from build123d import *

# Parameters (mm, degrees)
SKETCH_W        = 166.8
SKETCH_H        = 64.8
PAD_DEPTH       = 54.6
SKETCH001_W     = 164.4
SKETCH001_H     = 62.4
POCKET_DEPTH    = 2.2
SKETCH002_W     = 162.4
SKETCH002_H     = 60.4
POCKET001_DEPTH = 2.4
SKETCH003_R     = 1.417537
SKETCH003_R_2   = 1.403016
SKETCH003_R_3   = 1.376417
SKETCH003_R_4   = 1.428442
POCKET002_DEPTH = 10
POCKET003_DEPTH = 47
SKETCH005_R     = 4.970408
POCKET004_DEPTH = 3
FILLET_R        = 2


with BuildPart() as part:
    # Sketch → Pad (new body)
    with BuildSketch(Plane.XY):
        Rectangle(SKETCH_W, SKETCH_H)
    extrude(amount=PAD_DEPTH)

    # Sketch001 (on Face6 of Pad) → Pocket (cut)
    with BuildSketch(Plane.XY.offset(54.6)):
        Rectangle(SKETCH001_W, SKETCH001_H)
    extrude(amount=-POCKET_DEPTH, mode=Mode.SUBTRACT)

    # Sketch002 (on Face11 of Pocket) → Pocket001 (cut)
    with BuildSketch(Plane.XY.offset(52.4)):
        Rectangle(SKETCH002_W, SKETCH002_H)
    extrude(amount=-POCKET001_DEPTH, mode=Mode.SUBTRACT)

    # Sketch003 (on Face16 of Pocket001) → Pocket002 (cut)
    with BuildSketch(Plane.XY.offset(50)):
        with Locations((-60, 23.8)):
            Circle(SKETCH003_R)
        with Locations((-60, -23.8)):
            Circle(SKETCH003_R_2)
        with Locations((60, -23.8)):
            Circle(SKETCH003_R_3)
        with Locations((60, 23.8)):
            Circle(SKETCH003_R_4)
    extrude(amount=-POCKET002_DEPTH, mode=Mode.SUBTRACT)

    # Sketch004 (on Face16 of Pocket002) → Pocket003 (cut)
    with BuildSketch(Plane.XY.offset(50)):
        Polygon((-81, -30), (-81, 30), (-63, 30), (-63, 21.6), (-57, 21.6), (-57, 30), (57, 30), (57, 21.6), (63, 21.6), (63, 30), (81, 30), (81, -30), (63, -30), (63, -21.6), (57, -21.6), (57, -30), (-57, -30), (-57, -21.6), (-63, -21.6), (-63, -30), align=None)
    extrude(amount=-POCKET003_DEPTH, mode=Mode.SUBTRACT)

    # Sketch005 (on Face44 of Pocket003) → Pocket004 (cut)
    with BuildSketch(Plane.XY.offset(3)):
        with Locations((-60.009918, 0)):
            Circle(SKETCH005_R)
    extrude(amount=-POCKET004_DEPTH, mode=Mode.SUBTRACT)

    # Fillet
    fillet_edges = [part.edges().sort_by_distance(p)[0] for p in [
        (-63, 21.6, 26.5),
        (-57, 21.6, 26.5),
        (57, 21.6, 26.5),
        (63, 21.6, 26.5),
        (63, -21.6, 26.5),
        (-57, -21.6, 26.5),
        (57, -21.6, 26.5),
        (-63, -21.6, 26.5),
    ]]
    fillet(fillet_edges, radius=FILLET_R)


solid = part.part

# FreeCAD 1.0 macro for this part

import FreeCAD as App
import Part
import Sketcher

V = App.Vector
Q = App.Units.Quantity


def edges_at(feature, points):
    """Names of the edges that pass closest to the given points."""
    edges = feature.Shape.Edges
    near = lambda p: min(range(len(edges)), key=lambda i: edges[i].distToShape(Part.Vertex(*p))[0])
    return sorted({f"Edge{near(p) + 1}" for p in points})


def add_polygon(sketch, points):
    """Adds a closed chain of lines whose ends are joined by coincident constraints."""
    first, n = sketch.GeometryCount, len(points)
    for a, b in zip(points, points[1:] + points[:1]):
        sketch.addGeometry(Part.LineSegment(App.Vector(*a, 0), App.Vector(*b, 0)), False)
    for i in range(n):
        sketch.addConstraint(Sketcher.Constraint("Coincident", first + i, 2, first + (i + 1) % n, 1))

doc = App.newDocument("Part")
body = doc.addObject("PartDesign::Body", "Body")

# Sketch on XY plane
sketch1 = body.newObject("Sketcher::SketchObject", "Sketch")
sketch1.AttachmentSupport = (doc.getObject("XY_Plane"), [""])
sketch1.MapMode = "FlatFace"
add_polygon(sketch1, [(-83, 32), (-83, -32), (83, -32), (83, 32)])  # lines 0-3
sketch1.addConstraint([
    Sketcher.Constraint("Vertical", 0),
    Sketcher.Constraint("Horizontal", 1),
    Sketcher.Constraint("Vertical", 2),
    Sketcher.Constraint("Horizontal", 3),
    Sketcher.Constraint("Symmetric", 0, 2, 2, 2, -1, 1),
    Sketcher.Constraint("DistanceX", 1, 1, 1, 2, Q("166.8 mm")),
    Sketcher.Constraint("DistanceY", 0, 2, 0, 1, Q("64.8 mm")),
])
pad1 = body.newObject("PartDesign::Pad", "Pad")
pad1.Profile = sketch1
pad1.Length = 54.6

# Sketch on XY plane
sketch2 = body.newObject("Sketcher::SketchObject", "Sketch001")
sketch2.AttachmentSupport = (doc.getObject("XY_Plane"), [""])
sketch2.MapMode = "FlatFace"
sketch2.AttachmentOffset = App.Placement(V(0, 0, 54.6), App.Rotation())
add_polygon(sketch2, [(-82, 31), (-82, -31), (82, -31), (82, 31)])  # lines 0-3
sketch2.addConstraint([
    Sketcher.Constraint("Vertical", 0),
    Sketcher.Constraint("Horizontal", 1),
    Sketcher.Constraint("Vertical", 2),
    Sketcher.Constraint("Horizontal", 3),
    Sketcher.Constraint("Symmetric", 0, 2, 2, 2, -1, 1),
    Sketcher.Constraint("DistanceX", 1, 1, 1, 2, Q("164.4 mm")),
    Sketcher.Constraint("DistanceY", 0, 2, 0, 1, Q("62.4 mm")),
])
pocket1 = body.newObject("PartDesign::Pocket", "Pocket")
pocket1.Profile = sketch2
pocket1.Length = 2.2

# Sketch on XY plane
sketch3 = body.newObject("Sketcher::SketchObject", "Sketch002")
sketch3.AttachmentSupport = (doc.getObject("XY_Plane"), [""])
sketch3.MapMode = "FlatFace"
sketch3.AttachmentOffset = App.Placement(V(0, 0, 52.4), App.Rotation())
add_polygon(sketch3, [(-81, 30), (-81, -30), (81, -30), (81, 30)])  # lines 0-3
sketch3.addConstraint([
    Sketcher.Constraint("Vertical", 0),
    Sketcher.Constraint("Horizontal", 1),
    Sketcher.Constraint("Vertical", 2),
    Sketcher.Constraint("Horizontal", 3),
    Sketcher.Constraint("Symmetric", 0, 2, 2, 2, -1, 1),
    Sketcher.Constraint("DistanceX", 1, 1, 1, 2, Q("162.4 mm")),
    Sketcher.Constraint("DistanceY", 0, 2, 0, 1, Q("60.4 mm")),
])
pocket2 = body.newObject("PartDesign::Pocket", "Pocket001")
pocket2.Profile = sketch3
pocket2.Length = 2.4

# Sketch on XY plane
sketch4 = body.newObject("Sketcher::SketchObject", "Sketch003")
sketch4.AttachmentSupport = (doc.getObject("XY_Plane"), [""])
sketch4.MapMode = "FlatFace"
sketch4.AttachmentOffset = App.Placement(V(0, 0, 50), App.Rotation())
sketch4.addGeometry([
    Part.Circle(V(-60, 23.8, 0), V(0, 0, 1), 1.4),
    Part.Circle(V(-60, -23.8, 0), V(0, 0, 1), 1.4),
    Part.Circle(V(60, -23.8, 0), V(0, 0, 1), 1.4),
    Part.Circle(V(60, 23.8, 0), V(0, 0, 1), 1.4),
], False)
sketch4.addConstraint([
    Sketcher.Constraint("Symmetric", 0, 3, 2, 3, -1, 1),
    Sketcher.Constraint("Symmetric", 1, 3, 3, 3, -1, 1),
    Sketcher.Constraint("Symmetric", 1, 3, 2, 3, -2),
    Sketcher.Constraint("DistanceX", 0, 3, -1, 1, Q("60 mm")),
    Sketcher.Constraint("DistanceY", -1, 1, 0, 3, Q("23.8 mm")),
    Sketcher.Constraint("Diameter", 0, Q("2.835074 mm")),
    Sketcher.Constraint("Diameter", 1, Q("2.806032 mm")),
    Sketcher.Constraint("Diameter", 2, Q("2.752834 mm")),
    Sketcher.Constraint("Diameter", 3, Q("2.856884 mm")),
])
pocket3 = body.newObject("PartDesign::Pocket", "Pocket002")
pocket3.Profile = sketch4
pocket3.Length = 10

# Sketch on XY plane
sketch5 = body.newObject("Sketcher::SketchObject", "Sketch004")
sketch5.AttachmentSupport = (doc.getObject("XY_Plane"), [""])
sketch5.MapMode = "FlatFace"
sketch5.AttachmentOffset = App.Placement(V(0, 0, 50), App.Rotation())
add_polygon(sketch5, [(-81, 30), (-81, -30), (-63, -30), (-63, -22), (-57, -22), (-57, -30), (57, -30), (57, -22), (63, -22), (63, -30), (81, -30), (81, 30), (63, 30), (63, 22), (57, 22), (57, 30), (-57, 30), (-57, 22), (-63, 22), (-63, 30)])  # lines 0-19
sketch5.addConstraint([
    Sketcher.Constraint("Vertical", 0),
    Sketcher.Constraint("Horizontal", 1),
    Sketcher.Constraint("Vertical", 2),
    Sketcher.Constraint("Horizontal", 3),
    Sketcher.Constraint("Vertical", 4),
    Sketcher.Constraint("Horizontal", 5),
    Sketcher.Constraint("Vertical", 6),
    Sketcher.Constraint("Horizontal", 7),
    Sketcher.Constraint("Vertical", 8),
    Sketcher.Constraint("Horizontal", 9),
    Sketcher.Constraint("Vertical", 10),
    Sketcher.Constraint("Horizontal", 11),
    Sketcher.Constraint("Vertical", 12),
    Sketcher.Constraint("Horizontal", 13),
    Sketcher.Constraint("Vertical", 14),
    Sketcher.Constraint("Horizontal", 15),
    Sketcher.Constraint("Vertical", 16),
    Sketcher.Constraint("Horizontal", 17),
    Sketcher.Constraint("Vertical", 18),
    Sketcher.Constraint("Horizontal", 19),
    Sketcher.Constraint("Symmetric", 0, 2, 10, 2, -1, 1),
    Sketcher.Constraint("Symmetric", 2, 2, 12, 2, -1, 1),
    Sketcher.Constraint("Symmetric", 4, 2, 14, 2, -1, 1),
    Sketcher.Constraint("Symmetric", 6, 2, 16, 2, -1, 1),
    Sketcher.Constraint("Symmetric", 8, 2, 18, 2, -1, 1),
    Sketcher.Constraint("Symmetric", 3, 2, 6, 2, -2),
    Sketcher.Constraint("Symmetric", 1, 2, 8, 2, -2),
    Sketcher.Constraint("Horizontal", 1, 2, 4, 2),
    Sketcher.Constraint("DistanceX", 1, 1, 1, 2, Q("18 mm")),
    Sketcher.Constraint("DistanceX", 3, 1, 3, 2, Q("6 mm")),
    Sketcher.Constraint("DistanceX", 5, 1, 5, 2, Q("114 mm")),
    Sketcher.Constraint("DistanceY", 0, 2, 0, 1, Q("60 mm")),
    Sketcher.Constraint("DistanceY", 2, 1, 2, 2, Q("8.4 mm")),
])
pocket4 = body.newObject("PartDesign::Pocket", "Pocket003")
pocket4.Profile = sketch5
pocket4.Length = 47

# Sketch on XY plane
sketch6 = body.newObject("Sketcher::SketchObject", "Sketch005")
sketch6.AttachmentSupport = (doc.getObject("XY_Plane"), [""])
sketch6.MapMode = "FlatFace"
sketch6.AttachmentOffset = App.Placement(V(0, 0, 3), App.Rotation())
sketch6.addGeometry(Part.Circle(V(-60, 0, 0), V(0, 0, 1), 5), False)
sketch6.addConstraint([
    Sketcher.Constraint("PointOnObject", 0, 3, -1),
    Sketcher.Constraint("Diameter", 0, Q("9.940816 mm")),
    Sketcher.Constraint("DistanceX", 0, 3, -1, 1, Q("60.009918 mm")),
])
pocket5 = body.newObject("PartDesign::Pocket", "Pocket004")
pocket5.Profile = sketch6
pocket5.Length = 3
doc.recompute()

fillet = body.newObject("PartDesign::Fillet", "Fillet")
fillet.Base = (pocket5, edges_at(pocket5, [
    (-63, 21.6, 26.5),
    (-57, 21.6, 26.5),
    (57, 21.6, 26.5),
    (63, 21.6, 26.5),
    (63, -21.6, 26.5),
    (-57, -21.6, 26.5),
    (57, -21.6, 26.5),
    (-63, -21.6, 26.5),
]))
fillet.Radius = 2

doc.recompute()
